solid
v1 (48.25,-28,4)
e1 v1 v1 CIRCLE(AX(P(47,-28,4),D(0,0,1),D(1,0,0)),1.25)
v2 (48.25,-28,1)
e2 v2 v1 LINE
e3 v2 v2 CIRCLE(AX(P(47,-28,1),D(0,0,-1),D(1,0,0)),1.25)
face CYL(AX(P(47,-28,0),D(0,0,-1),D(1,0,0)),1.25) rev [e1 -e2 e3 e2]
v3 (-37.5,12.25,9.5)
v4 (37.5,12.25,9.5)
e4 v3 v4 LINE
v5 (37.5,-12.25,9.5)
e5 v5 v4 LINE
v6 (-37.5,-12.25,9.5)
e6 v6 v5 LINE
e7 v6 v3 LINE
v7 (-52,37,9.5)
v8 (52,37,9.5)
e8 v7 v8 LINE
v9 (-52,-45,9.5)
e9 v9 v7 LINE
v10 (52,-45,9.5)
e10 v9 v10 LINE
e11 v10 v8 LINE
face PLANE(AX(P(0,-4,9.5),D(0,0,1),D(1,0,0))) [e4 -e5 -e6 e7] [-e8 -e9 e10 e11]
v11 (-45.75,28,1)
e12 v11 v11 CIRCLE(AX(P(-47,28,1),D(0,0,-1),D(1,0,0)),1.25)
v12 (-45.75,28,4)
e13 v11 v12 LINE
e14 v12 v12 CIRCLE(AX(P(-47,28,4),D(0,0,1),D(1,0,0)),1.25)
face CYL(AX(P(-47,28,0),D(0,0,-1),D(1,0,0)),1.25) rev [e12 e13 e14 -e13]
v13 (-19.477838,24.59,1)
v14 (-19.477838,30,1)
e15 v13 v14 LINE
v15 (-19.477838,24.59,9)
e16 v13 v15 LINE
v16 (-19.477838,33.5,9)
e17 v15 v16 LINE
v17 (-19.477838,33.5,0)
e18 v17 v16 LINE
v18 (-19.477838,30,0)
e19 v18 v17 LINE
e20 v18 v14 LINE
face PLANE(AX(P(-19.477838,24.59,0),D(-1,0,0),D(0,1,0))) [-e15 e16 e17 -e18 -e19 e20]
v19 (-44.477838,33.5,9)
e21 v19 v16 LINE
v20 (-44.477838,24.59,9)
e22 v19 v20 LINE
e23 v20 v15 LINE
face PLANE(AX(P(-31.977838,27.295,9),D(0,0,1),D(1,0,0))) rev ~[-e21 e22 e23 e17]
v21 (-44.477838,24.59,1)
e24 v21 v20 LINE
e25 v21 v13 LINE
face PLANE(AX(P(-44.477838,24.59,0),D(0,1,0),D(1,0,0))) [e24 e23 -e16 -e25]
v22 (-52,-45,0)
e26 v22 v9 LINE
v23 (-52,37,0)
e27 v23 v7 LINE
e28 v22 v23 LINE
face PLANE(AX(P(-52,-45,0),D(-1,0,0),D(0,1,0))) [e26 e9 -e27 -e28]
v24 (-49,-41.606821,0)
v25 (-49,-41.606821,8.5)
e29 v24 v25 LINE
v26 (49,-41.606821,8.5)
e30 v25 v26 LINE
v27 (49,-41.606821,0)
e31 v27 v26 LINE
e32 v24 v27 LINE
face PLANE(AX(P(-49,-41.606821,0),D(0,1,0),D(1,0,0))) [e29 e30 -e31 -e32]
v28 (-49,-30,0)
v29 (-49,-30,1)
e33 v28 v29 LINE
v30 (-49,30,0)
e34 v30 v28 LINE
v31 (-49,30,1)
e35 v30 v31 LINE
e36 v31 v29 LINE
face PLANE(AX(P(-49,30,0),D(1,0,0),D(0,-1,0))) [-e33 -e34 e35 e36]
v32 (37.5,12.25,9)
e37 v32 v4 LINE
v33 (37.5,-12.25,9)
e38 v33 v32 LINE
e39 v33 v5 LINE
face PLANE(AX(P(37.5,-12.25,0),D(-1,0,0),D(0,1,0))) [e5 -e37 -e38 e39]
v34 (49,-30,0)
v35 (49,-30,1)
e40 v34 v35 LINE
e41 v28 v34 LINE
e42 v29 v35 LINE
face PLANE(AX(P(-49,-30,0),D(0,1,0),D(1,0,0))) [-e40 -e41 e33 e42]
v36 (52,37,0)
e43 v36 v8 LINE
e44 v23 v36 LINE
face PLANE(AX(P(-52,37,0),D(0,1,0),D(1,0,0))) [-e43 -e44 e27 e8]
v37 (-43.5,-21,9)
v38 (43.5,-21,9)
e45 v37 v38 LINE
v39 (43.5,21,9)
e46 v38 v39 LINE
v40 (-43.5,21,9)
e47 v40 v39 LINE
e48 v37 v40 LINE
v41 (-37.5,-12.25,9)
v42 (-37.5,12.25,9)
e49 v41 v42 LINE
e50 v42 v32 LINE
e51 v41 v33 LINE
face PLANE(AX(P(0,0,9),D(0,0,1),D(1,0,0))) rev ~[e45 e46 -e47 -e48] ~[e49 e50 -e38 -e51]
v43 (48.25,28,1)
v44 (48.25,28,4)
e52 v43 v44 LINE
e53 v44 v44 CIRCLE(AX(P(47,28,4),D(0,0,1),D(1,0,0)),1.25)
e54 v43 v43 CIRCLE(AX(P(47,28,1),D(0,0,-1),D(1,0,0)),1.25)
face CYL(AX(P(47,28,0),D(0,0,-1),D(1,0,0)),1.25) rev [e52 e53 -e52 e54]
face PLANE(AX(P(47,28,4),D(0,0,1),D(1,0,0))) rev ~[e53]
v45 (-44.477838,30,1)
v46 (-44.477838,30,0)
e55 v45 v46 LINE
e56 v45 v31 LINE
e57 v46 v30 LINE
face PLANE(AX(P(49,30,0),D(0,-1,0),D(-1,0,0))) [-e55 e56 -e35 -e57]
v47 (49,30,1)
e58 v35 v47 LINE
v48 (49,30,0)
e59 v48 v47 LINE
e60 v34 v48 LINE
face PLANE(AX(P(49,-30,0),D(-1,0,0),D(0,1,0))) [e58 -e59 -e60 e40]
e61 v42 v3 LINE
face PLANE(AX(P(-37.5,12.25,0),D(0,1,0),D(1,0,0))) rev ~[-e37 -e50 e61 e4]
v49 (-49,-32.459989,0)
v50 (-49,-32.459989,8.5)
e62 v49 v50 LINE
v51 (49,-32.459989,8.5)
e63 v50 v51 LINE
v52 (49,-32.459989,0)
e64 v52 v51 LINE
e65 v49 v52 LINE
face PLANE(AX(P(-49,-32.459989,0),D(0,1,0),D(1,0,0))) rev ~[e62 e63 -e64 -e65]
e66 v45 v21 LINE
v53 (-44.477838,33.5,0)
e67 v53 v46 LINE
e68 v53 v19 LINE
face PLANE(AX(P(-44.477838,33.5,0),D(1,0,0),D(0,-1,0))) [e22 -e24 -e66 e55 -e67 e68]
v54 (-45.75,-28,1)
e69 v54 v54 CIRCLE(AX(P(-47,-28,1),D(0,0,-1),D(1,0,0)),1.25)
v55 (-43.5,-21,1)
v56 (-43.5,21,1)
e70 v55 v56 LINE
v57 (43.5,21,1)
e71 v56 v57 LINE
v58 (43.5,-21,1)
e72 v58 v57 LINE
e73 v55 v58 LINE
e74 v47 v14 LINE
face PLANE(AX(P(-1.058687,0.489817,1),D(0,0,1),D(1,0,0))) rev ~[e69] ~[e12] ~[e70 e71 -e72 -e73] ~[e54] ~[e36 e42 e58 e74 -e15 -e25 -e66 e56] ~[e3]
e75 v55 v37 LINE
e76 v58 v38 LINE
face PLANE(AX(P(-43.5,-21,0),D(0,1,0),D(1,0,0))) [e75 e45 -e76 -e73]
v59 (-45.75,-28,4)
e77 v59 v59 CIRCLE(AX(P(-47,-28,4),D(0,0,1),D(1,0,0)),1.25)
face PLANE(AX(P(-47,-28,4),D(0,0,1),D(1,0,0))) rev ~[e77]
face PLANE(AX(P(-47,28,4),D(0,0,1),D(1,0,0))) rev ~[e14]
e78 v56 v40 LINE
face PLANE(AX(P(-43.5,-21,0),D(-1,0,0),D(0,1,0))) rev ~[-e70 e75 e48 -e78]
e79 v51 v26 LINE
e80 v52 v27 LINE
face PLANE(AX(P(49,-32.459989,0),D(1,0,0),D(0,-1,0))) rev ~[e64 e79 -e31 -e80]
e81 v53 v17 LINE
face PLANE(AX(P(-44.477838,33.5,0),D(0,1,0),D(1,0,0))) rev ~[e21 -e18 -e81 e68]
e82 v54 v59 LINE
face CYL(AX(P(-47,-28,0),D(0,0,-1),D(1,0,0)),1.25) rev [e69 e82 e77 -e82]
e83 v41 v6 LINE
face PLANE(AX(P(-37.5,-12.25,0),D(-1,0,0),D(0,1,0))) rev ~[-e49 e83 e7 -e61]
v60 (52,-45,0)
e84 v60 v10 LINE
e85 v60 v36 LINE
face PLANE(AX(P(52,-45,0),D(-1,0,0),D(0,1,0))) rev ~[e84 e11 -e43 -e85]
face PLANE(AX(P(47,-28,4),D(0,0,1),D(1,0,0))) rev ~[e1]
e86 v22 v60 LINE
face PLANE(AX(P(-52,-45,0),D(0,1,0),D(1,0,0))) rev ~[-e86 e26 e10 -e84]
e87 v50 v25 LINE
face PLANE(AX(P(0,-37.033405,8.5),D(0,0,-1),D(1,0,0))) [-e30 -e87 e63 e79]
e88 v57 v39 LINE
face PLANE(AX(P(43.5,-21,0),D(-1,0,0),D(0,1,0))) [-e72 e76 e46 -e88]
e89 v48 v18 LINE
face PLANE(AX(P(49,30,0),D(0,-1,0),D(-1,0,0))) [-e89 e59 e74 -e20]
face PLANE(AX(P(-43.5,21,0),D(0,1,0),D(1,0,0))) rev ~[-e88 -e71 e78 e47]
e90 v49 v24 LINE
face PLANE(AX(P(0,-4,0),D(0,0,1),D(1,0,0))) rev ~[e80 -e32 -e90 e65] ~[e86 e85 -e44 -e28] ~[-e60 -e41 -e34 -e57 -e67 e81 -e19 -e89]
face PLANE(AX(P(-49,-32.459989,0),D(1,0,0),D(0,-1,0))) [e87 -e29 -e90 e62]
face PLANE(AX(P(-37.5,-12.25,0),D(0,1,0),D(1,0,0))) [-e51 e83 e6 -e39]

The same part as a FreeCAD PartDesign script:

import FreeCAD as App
import Part
import Sketcher
from FreeCAD import Vector
Q = App.Units.Quantity

doc = App.newDocument("Part")
body = doc.addObject("PartDesign::Body", "Body")

sketch1 = body.newObject("Sketcher::SketchObject", "Sketch")
sketch1.AttachmentSupport = (doc.getObject("XY_Plane"), [""])
sketch1.MapMode = "FlatFace"
sketch1.addGeometry([
    Part.LineSegment(Vector(-52, 37, 0), Vector(-52, -45, 0)),
    Part.LineSegment(Vector(-52, -45, 0), Vector(52, -45, 0)),
    Part.LineSegment(Vector(52, -45, 0), Vector(52, 37, 0)),
    Part.LineSegment(Vector(52, 37, 0), Vector(-52, 37, 0)),
    Part.LineSegment(Vector(38, -12, 0), Vector(-38, -12, 0)),
    Part.LineSegment(Vector(-38, -12, 0), Vector(-38, 12, 0)),
    Part.LineSegment(Vector(-38, 12, 0), Vector(38, 12, 0)),
    Part.LineSegment(Vector(38, 12, 0), Vector(38, -12, 0)),
], False)
sketch1.addConstraint([
    Sketcher.Constraint("Coincident", 0, 2, 1, 1),
    Sketcher.Constraint("Coincident", 1, 2, 2, 1),
    Sketcher.Constraint("Coincident", 2, 2, 3, 1),
    Sketcher.Constraint("Coincident", 3, 2, 0, 1),
    Sketcher.Constraint("Coincident", 4, 2, 5, 1),
    Sketcher.Constraint("Coincident", 5, 2, 6, 1),
    Sketcher.Constraint("Coincident", 6, 2, 7, 1),
    Sketcher.Constraint("Coincident", 7, 2, 4, 1),
    Sketcher.Constraint("Vertical", 0),
    Sketcher.Constraint("Horizontal", 1),
    Sketcher.Constraint("Vertical", 2),
    Sketcher.Constraint("Horizontal", 3),
    Sketcher.Constraint("Horizontal", 4),
    Sketcher.Constraint("Vertical", 5),
    Sketcher.Constraint("Horizontal", 6),
    Sketcher.Constraint("Vertical", 7),
    Sketcher.Constraint("Symmetric", 4, 2, 6, 2, -1, 1),
    Sketcher.Constraint("DistanceX", 1, 1, 1, 2, Q("104 mm")),
    Sketcher.Constraint("DistanceX", 4, 2, 4, 1, Q("75 mm")),
    Sketcher.Constraint("DistanceY", 0, 2, 0, 1, Q("82 mm")),
    Sketcher.Constraint("DistanceY", 5, 1, 5, 2, Q("24.5 mm")),
    Sketcher.Constraint("DistanceX", 0, 2, -1, 1, Q("52 mm")),
    Sketcher.Constraint("DistanceY", 0, 2, -1, 1, Q("45 mm")),
])
pad1 = body.newObject("PartDesign::Pad", "Pad")
pad1.Profile = sketch1
pad1.Length = 9.5

sketch2 = body.newObject("Sketcher::SketchObject", "Sketch001")
sketch2.AttachmentSupport = (doc.getObject("XY_Plane"), [""])
sketch2.MapMode = "FlatFace"
sketch2.addGeometry([
    Part.LineSegment(Vector(-44, 21, 0), Vector(-44, -21, 0)),
    Part.LineSegment(Vector(-44, -21, 0), Vector(44, -21, 0)),
    Part.LineSegment(Vector(44, -21, 0), Vector(44, 21, 0)),
    Part.LineSegment(Vector(44, 21, 0), Vector(-44, 21, 0)),
    Part.LineSegment(Vector(38, -12, 0), Vector(-38, -12, 0)),
    Part.LineSegment(Vector(-38, -12, 0), Vector(-38, 12, 0)),
    Part.LineSegment(Vector(-38, 12, 0), Vector(38, 12, 0)),
    Part.LineSegment(Vector(38, 12, 0), Vector(38, -12, 0)),
    Part.LineSegment(Vector(-44, 25, 0), Vector(-19, 25, 0)),
    Part.LineSegment(Vector(-19, 25, 0), Vector(-19, 34, 0)),
    Part.LineSegment(Vector(-19, 34, 0), Vector(-44, 34, 0)),
    Part.LineSegment(Vector(-44, 34, 0), Vector(-44, 25, 0)),
], False)
sketch2.addConstraint([
    Sketcher.Constraint("Coincident", 0, 2, 1, 1),
    Sketcher.Constraint("Coincident", 1, 2, 2, 1),
    Sketcher.Constraint("Coincident", 2, 2, 3, 1),
    Sketcher.Constraint("Coincident", 3, 2, 0, 1),
    Sketcher.Constraint("Coincident", 4, 2, 5, 1),
    Sketcher.Constraint("Coincident", 5, 2, 6, 1),
    Sketcher.Constraint("Coincident", 6, 2, 7, 1),
    Sketcher.Constraint("Coincident", 7, 2, 4, 1),
    Sketcher.Constraint("Coincident", 8, 2, 9, 1),
    Sketcher.Constraint("Coincident", 9, 2, 10, 1),
    Sketcher.Constraint("Coincident", 10, 2, 11, 1),
    Sketcher.Constraint("Coincident", 11, 2, 8, 1),
    Sketcher.Constraint("Vertical", 0),
    Sketcher.Constraint("Horizontal", 1),
    Sketcher.Constraint("Vertical", 2),
    Sketcher.Constraint("Horizontal", 3),
    Sketcher.Constraint("Horizontal", 4),
    Sketcher.Constraint("Vertical", 5),
    Sketcher.Constraint("Horizontal", 6),
    Sketcher.Constraint("Vertical", 7),
    Sketcher.Constraint("Horizontal", 8),
    Sketcher.Constraint("Vertical", 9),
    Sketcher.Constraint("Horizontal", 10),
    Sketcher.Constraint("Vertical", 11),
    Sketcher.Constraint("Symmetric", 0, 2, 2, 2, -1, 1),
    Sketcher.Constraint("Symmetric", 4, 2, 6, 2, -1, 1),
    Sketcher.Constraint("DistanceX", 1, 1, 1, 2, Q("87 mm")),
    Sketcher.Constraint("DistanceX", 4, 2, 4, 1, Q("75 mm")),
    Sketcher.Constraint("DistanceX", 8, 1, 8, 2, Q("25 mm")),
    Sketcher.Constraint("DistanceY", 0, 2, 0, 1, Q("42 mm")),
    Sketcher.Constraint("DistanceY", 5, 1, 5, 2, Q("24.5 mm")),
    Sketcher.Constraint("DistanceY", 9, 1, 9, 2, Q("8.91 mm")),
    Sketcher.Constraint("DistanceY", -1, 1, 9, 2, Q("33.5 mm")),
    Sketcher.Constraint("DistanceX", 8, 2, -1, 1, Q("19.477838 mm")),
])
pocket1 = body.newObject("PartDesign::Pocket", "Pocket")
pocket1.Profile = sketch2
pocket1.Length = 9
pocket1.Reversed = True

sketch3 = body.newObject("Sketcher::SketchObject", "Sketch002")
sketch3.AttachmentSupport = (doc.getObject("XY_Plane"), [""])
sketch3.MapMode = "FlatFace"
sketch3.addGeometry([
    Part.LineSegment(Vector(-49, 30, 0), Vector(-49, -30, 0)),
    Part.LineSegment(Vector(-49, -30, 0), Vector(49, -30, 0)),
    Part.LineSegment(Vector(49, -30, 0), Vector(49, 30, 0)),
    Part.LineSegment(Vector(49, 30, 0), Vector(-49, 30, 0)),
    Part.LineSegment(Vector(38, -12, 0), Vector(-38, -12, 0)),
    Part.LineSegment(Vector(-38, -12, 0), Vector(-38, 12, 0)),
    Part.LineSegment(Vector(-38, 12, 0), Vector(38, 12, 0)),
    Part.LineSegment(Vector(38, 12, 0), Vector(38, -12, 0)),
], False)
sketch3.addConstraint([
    Sketcher.Constraint("Coincident", 0, 2, 1, 1),
    Sketcher.Constraint("Coincident", 1, 2, 2, 1),
    Sketcher.Constraint("Coincident", 2, 2, 3, 1),
    Sketcher.Constraint("Coincident", 3, 2, 0, 1),
    Sketcher.Constraint("Coincident", 4, 2, 5, 1),
    Sketcher.Constraint("Coincident", 5, 2, 6, 1),
    Sketcher.Constraint("Coincident", 6, 2, 7, 1),
    Sketcher.Constraint("Coincident", 7, 2, 4, 1),
    Sketcher.Constraint("Vertical", 0),
    Sketcher.Constraint("Horizontal", 1),
    Sketcher.Constraint("Vertical", 2),
    Sketcher.Constraint("Horizontal", 3),
    Sketcher.Constraint("Horizontal", 4),
    Sketcher.Constraint("Vertical", 5),
    Sketcher.Constraint("Horizontal", 6),
    Sketcher.Constraint("Vertical", 7),
    Sketcher.Constraint("Symmetric", 0, 2, 2, 2, -1, 1),
    Sketcher.Constraint("Symmetric", 4, 2, 6, 2, -1, 1),
    Sketcher.Constraint("DistanceX", 1, 1, 1, 2, Q("98 mm")),
    Sketcher.Constraint("DistanceX", 4, 2, 4, 1, Q("75 mm")),
    Sketcher.Constraint("DistanceY", 0, 2, 0, 1, Q("60 mm")),
    Sketcher.Constraint("DistanceY", 5, 1, 5, 2, Q("24.5 mm")),
])
pocket2 = body.newObject("PartDesign::Pocket", "Pocket001")
pocket2.Profile = sketch3
pocket2.Length = 1
pocket2.Reversed = True

sketch4 = body.newObject("Sketcher::SketchObject", "Sketch003")
sketch4.AttachmentSupport = (doc.getObject("XY_Plane"), [""])
sketch4.MapMode = "FlatFace"
sketch4.addGeometry([
    Part.Circle(Vector(-47, 28, 0), Vector(0, 0, 1), 1.2),
    Part.Circle(Vector(47, 28, 0), Vector(0, 0, 1), 1.2),
    Part.Circle(Vector(47, -28, 0), Vector(0, 0, 1), 1.2),
    Part.Circle(Vector(-47, -28, 0), Vector(0, 0, 1), 1.2),
], False)
sketch4.addConstraint([
    Sketcher.Constraint("Equal", 0, 1),
    Sketcher.Constraint("Equal", 1, 2),
    Sketcher.Constraint("Equal", 2, 3),
    Sketcher.Constraint("Symmetric", 0, 3, 2, 3, -1, 1),
    Sketcher.Constraint("Symmetric", 1, 3, 3, 3, -1, 1),
    Sketcher.Constraint("Symmetric", 0, 3, 1, 3, -2),
    Sketcher.Constraint("Diameter", 0, Q("2.5 mm")),
    Sketcher.Constraint("DistanceX", 0, 3, -1, 1, Q("47 mm")),
    Sketcher.Constraint("DistanceY", -1, 1, 0, 3, Q("28 mm")),
])
pocket3 = body.newObject("PartDesign::Pocket", "Pocket002")
pocket3.Profile = sketch4
pocket3.Length = 4
pocket3.Reversed = True

sketch5 = body.newObject("Sketcher::SketchObject", "Sketch004")
sketch5.AttachmentSupport = (doc.getObject("XY_Plane"), [""])
sketch5.MapMode = "FlatFace"
sketch5.addGeometry([
    Part.LineSegment(Vector(-49, -42, 0), Vector(-49, -32, 0)),
    Part.LineSegment(Vector(-49, -32, 0), Vector(49, -32, 0)),
    Part.LineSegment(Vector(49, -32, 0), Vector(49, -42, 0)),
    Part.LineSegment(Vector(49, -42, 0), Vector(-49, -42, 0)),
], False)
sketch5.addConstraint([
    Sketcher.Constraint("Coincident", 0, 2, 1, 1),
    Sketcher.Constraint("Coincident", 1, 2, 2, 1),
    Sketcher.Constraint("Coincident", 2, 2, 3, 1),
    Sketcher.Constraint("Coincident", 3, 2, 0, 1),
    Sketcher.Constraint("Vertical", 0),
    Sketcher.Constraint("Horizontal", 1),
    Sketcher.Constraint("Vertical", 2),
    Sketcher.Constraint("Horizontal", 3),
    Sketcher.Constraint("DistanceX", 1, 1, 1, 2, Q("98 mm")),
    Sketcher.Constraint("DistanceX", 0, 2, -1, 1, Q("49 mm")),
    Sketcher.Constraint("DistanceY", 0, 1, 0, 2, Q("9.146832 mm")),
    Sketcher.Constraint("DistanceY", 0, 2, -1, 1, Q("32.459989 mm")),
])
pocket4 = body.newObject("PartDesign::Pocket", "Pocket003")
pocket4.Profile = sketch5
pocket4.Length = 8.5
pocket4.Reversed = True

doc.recompute()
